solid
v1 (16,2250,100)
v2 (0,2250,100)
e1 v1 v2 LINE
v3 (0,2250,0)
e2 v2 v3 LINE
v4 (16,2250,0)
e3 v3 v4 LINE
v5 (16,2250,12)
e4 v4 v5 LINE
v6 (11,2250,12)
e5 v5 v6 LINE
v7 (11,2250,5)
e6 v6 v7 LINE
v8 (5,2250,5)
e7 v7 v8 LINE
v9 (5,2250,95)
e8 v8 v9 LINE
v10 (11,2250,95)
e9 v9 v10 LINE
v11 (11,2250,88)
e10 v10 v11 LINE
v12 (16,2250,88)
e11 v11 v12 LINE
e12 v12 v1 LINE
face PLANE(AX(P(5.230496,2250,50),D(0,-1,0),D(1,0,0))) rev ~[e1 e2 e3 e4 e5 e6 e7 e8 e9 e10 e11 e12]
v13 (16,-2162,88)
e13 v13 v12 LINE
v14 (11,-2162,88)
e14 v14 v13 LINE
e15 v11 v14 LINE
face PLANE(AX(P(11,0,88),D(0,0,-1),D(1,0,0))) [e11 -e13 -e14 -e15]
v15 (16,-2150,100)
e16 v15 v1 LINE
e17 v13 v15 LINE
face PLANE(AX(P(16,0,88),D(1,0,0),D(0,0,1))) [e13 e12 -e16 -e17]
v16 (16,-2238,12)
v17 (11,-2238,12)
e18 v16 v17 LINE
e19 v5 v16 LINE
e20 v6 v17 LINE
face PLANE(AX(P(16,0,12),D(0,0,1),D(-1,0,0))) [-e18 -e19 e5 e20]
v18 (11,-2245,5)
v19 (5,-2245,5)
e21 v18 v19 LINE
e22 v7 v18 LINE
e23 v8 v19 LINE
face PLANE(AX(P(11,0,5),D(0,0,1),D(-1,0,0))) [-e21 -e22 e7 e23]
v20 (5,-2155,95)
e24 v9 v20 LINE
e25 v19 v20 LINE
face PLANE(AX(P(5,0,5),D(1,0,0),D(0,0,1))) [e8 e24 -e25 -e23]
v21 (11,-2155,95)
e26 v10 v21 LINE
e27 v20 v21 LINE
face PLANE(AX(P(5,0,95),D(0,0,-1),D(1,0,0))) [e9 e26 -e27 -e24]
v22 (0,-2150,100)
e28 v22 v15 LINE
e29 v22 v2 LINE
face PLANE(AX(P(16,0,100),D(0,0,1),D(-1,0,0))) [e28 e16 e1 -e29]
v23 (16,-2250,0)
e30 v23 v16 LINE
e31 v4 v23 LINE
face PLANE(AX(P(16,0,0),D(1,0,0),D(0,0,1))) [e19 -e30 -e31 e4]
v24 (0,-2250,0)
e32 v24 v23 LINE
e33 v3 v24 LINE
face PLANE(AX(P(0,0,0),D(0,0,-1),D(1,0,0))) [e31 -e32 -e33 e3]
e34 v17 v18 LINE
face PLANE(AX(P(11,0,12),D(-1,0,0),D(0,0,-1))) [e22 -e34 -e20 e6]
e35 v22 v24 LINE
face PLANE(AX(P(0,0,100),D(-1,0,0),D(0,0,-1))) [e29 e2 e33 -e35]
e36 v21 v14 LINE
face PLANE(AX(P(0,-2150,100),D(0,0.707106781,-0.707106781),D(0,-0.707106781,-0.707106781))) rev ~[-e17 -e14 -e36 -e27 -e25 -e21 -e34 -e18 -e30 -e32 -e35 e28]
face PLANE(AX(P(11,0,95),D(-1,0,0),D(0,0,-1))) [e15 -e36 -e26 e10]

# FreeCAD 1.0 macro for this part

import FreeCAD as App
import Part
import Sketcher
from FreeCAD import Vector
Q = App.Units.Quantity


def add_polygon(sketch, points):
    """Adds a closed chain of lines whose ends are joined by coincident constraints."""
    first, n = sketch.GeometryCount, len(points)
    for a, b in zip(points, points[1:] + points[:1]):
        sketch.addGeometry(Part.LineSegment(App.Vector(*a, 0), App.Vector(*b, 0)), False)
    for i in range(n):
        sketch.addConstraint(Sketcher.Constraint("Coincident", first + i, 2, first + (i + 1) % n, 1))

doc = App.newDocument("Part")
body = doc.addObject("PartDesign::Body", "Body")

# Sketch on XZ plane
sketch1 = body.newObject("Sketcher::SketchObject", "Sketch")
sketch1.AttachmentSupport = (doc.getObject("XZ_Plane"), [""])
sketch1.MapMode = "FlatFace"
add_polygon(sketch1, [(0, 100), (0, 0), (16, 0), (16, 12), (11, 12), (11, 5), (5, 5), (5, 95), (11, 95), (11, 88), (16, 88), (16, 100)])  # lines 0-11
sketch1.addConstraint([
    Sketcher.Constraint("Vertical", 0),
    Sketcher.Constraint("Horizontal", 1),
    Sketcher.Constraint("Vertical", 2),
    Sketcher.Constraint("Horizontal", 3),
    Sketcher.Constraint("Vertical", 4),
    Sketcher.Constraint("Horizontal", 5),
    Sketcher.Constraint("Vertical", 6),
    Sketcher.Constraint("Horizontal", 7),
    Sketcher.Constraint("Vertical", 8),
    Sketcher.Constraint("Horizontal", 9),
    Sketcher.Constraint("Vertical", 10),
    Sketcher.Constraint("Horizontal", 11),
    Sketcher.Constraint("Coincident", 0, 2, -1, 1),
    Sketcher.Constraint("Vertical", 4, 2, 7, 2),
    Sketcher.Constraint("Vertical", 2, 2, 9, 2),
    Sketcher.Constraint("Equal", 4, 8),
    Sketcher.Constraint("Equal", 2, 10),
    Sketcher.Constraint("DistanceX", 1, 1, 1, 2, Q("16 mm")),
    Sketcher.Constraint("DistanceX", 3, 2, 3, 1, Q("5 mm")),
    Sketcher.Constraint("DistanceX", 5, 2, 5, 1, Q("6 mm")),
    Sketcher.Constraint("DistanceY", 0, 2, 0, 1, Q("100 mm")),
    Sketcher.Constraint("DistanceY", 2, 1, 2, 2, Q("12 mm")),
    Sketcher.Constraint("DistanceY", 4, 2, 4, 1, Q("7 mm")),
])
pad1 = body.newObject("PartDesign::Pad", "Pad")
pad1.Profile = sketch1
pad1.Length = 4500
pad1.Midplane = True

# Sketch on YZ plane
sketch2 = body.newObject("Sketcher::SketchObject", "Sketch001")
sketch2.AttachmentSupport = (doc.getObject("YZ_Plane"), [""])
sketch2.MapMode = "FlatFace"
add_polygon(sketch2, [(-2150, 100), (-2250, 0), (-2250, 100)])  # lines 0-2
sketch2.addConstraint([
    Sketcher.Constraint("Vertical", 1),
    Sketcher.Constraint("Horizontal", 2),
    Sketcher.Constraint("PointOnObject", 0, 2, -1),
    Sketcher.Constraint("Equal", 2, 1),
    Sketcher.Constraint("DistanceX", 2, 1, 2, 2, Q("100 mm")),
    Sketcher.Constraint("DistanceX", 0, 2, -1, 1, Q("2250 mm")),
])
pocket1 = body.newObject("PartDesign::Pocket", "Pocket")
pocket1.Profile = sketch2
pocket1.Length = 25
pocket1.Reversed = True

doc.recompute()
